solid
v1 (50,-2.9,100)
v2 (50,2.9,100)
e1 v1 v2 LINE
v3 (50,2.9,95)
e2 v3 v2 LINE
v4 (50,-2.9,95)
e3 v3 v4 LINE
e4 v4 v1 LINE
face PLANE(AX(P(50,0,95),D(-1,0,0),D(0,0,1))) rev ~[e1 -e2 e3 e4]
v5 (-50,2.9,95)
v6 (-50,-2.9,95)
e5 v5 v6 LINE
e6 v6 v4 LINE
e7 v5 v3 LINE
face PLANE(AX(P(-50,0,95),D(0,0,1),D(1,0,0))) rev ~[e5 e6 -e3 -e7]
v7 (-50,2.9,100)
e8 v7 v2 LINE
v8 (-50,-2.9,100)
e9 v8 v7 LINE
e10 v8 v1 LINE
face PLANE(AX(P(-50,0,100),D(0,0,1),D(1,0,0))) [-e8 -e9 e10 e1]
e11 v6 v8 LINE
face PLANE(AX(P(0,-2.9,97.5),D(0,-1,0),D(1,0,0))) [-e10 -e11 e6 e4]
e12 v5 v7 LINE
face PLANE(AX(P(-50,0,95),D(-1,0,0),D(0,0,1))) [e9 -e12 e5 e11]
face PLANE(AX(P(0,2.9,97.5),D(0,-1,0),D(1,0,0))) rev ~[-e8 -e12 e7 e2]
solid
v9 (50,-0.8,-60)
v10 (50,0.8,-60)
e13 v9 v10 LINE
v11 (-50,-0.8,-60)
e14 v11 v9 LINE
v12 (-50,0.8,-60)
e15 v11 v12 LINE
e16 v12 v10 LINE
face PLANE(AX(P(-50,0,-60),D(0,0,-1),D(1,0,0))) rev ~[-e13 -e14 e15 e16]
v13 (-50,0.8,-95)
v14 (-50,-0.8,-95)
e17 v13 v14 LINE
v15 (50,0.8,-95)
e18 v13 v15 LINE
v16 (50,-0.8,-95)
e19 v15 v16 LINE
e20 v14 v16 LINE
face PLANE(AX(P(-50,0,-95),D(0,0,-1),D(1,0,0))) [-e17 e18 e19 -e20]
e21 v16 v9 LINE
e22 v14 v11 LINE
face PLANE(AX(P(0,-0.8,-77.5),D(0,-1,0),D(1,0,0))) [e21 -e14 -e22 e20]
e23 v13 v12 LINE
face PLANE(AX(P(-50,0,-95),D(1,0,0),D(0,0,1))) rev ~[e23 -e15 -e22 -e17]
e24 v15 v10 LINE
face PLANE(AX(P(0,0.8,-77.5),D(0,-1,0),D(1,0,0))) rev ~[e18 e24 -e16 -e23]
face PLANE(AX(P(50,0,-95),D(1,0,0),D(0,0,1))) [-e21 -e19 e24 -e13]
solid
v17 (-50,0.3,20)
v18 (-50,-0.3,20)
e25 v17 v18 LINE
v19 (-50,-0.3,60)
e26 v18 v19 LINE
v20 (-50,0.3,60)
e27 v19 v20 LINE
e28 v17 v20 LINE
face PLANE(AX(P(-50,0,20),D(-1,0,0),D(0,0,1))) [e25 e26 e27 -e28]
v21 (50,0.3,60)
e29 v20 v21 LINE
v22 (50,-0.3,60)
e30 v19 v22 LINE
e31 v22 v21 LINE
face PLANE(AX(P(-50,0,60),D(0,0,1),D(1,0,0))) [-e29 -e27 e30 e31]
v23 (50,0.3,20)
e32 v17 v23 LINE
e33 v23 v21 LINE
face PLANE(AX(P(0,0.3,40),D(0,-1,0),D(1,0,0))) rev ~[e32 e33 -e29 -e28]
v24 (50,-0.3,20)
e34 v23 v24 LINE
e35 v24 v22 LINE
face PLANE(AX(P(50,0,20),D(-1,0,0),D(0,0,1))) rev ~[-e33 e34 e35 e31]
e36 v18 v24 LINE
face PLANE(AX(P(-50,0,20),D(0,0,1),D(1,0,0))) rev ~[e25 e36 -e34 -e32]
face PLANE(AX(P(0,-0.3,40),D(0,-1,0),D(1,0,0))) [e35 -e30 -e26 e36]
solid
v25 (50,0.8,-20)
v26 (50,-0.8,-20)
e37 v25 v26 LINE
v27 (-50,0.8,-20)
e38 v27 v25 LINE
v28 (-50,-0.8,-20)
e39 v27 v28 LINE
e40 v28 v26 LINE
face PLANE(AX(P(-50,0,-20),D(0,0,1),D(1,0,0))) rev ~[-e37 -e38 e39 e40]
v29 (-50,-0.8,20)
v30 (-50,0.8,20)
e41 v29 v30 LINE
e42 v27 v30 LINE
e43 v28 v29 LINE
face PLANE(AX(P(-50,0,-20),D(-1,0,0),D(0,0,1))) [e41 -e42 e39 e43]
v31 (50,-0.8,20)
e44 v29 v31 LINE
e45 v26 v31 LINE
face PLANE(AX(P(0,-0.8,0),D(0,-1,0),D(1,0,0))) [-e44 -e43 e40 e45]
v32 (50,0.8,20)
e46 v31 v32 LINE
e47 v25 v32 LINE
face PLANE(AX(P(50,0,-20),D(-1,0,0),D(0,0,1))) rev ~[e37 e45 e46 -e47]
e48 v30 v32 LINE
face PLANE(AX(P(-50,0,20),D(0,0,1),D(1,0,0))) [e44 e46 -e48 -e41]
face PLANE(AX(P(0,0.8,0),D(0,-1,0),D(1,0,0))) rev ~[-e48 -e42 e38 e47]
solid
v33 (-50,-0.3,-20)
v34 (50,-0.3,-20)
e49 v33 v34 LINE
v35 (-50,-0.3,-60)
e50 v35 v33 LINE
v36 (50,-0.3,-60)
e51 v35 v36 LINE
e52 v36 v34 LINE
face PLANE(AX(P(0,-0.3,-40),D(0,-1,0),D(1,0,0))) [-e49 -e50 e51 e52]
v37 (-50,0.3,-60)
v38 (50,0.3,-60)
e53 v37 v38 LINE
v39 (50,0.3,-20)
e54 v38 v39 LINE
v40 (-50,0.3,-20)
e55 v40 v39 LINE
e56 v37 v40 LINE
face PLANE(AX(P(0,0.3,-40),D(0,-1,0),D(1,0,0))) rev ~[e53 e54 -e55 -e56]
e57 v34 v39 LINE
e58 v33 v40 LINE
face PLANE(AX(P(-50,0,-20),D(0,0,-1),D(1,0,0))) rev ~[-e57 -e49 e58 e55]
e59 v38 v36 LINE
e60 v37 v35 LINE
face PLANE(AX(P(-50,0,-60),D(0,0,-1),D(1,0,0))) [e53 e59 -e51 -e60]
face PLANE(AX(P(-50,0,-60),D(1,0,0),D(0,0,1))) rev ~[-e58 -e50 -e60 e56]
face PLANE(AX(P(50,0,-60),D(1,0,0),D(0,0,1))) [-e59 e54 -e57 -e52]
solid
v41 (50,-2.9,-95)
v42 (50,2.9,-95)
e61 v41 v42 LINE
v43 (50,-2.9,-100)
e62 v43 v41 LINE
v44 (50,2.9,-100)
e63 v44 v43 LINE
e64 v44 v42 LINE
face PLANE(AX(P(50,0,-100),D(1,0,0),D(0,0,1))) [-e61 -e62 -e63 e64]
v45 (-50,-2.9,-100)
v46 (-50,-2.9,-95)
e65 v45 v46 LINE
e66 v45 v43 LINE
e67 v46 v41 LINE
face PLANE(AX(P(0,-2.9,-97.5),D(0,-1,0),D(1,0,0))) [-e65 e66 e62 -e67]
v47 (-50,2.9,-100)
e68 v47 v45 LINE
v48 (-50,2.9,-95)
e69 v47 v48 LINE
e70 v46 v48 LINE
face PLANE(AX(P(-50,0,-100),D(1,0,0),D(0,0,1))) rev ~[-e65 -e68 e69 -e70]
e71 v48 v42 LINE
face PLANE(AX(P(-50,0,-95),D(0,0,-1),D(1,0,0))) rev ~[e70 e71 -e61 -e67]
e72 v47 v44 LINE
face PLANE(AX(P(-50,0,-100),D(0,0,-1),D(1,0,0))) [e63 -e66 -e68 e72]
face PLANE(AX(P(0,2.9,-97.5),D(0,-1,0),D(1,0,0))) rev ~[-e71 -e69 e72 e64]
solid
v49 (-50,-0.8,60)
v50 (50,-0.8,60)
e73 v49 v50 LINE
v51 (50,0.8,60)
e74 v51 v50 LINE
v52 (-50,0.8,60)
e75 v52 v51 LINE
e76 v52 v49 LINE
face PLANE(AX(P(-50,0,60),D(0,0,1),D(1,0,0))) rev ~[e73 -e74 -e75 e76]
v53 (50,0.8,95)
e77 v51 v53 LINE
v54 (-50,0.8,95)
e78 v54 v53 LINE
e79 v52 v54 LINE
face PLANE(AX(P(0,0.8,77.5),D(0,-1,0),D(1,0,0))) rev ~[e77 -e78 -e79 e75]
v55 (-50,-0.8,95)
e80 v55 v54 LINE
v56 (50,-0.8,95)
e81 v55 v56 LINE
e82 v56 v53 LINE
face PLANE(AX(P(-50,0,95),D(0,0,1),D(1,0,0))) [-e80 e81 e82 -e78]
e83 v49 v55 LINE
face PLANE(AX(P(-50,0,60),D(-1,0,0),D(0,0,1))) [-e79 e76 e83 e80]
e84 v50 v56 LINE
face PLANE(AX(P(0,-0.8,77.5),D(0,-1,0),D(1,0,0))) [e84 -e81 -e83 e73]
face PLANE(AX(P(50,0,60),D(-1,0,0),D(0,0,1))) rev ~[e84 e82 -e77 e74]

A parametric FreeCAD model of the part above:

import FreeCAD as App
import Part
import Sketcher

doc = App.newDocument("Part")
params = doc.addObject("Spreadsheet::Sheet", "Params")
for row, (alias, value) in enumerate([
    ("sketch1_width", "100 mm"),
    ("sketch1_height", "5 mm"),
    ("pad1_length", "5.8 mm"),
    ("sketch2_width", "100 mm"),
    ("sketch2_height", "35 mm"),
    ("sketch2_height2", "40 mm"),
    ("pad2_length", "1.6 mm"),
    ("sketch3_width", "100 mm"),
    ("sketch3_height", "40 mm"),
    ("pad3_length", "0.6 mm"),
], start=1):
    params.set(f"A{row}", alias)
    params.set(f"B{row}", "=" + value)
    params.setAlias(f"B{row}", alias)

body = doc.addObject("PartDesign::Body", "Body")
body.AllowCompound = True

# Sketch on XZ plane
sketch1 = doc.addObject("Sketcher::SketchObject", "Sketch")
body.addObject(sketch1)
sketch1.AttachmentSupport = (doc.XZ_Plane, [""])
sketch1.MapMode = "FlatFace"
sketch1.addGeometry([
    Part.LineSegment(App.Vector(-50, 100, 0), App.Vector(-50, 95, 0)),  # 0
    Part.LineSegment(App.Vector(-50, 95, 0), App.Vector(50, 95, 0)),  # 1
    Part.LineSegment(App.Vector(50, 95, 0), App.Vector(50, 100, 0)),  # 2
    Part.LineSegment(App.Vector(50, 100, 0), App.Vector(-50, 100, 0)),  # 3
    Part.LineSegment(App.Vector(-50, -95, 0), App.Vector(-50, -100, 0)),  # 4
    Part.LineSegment(App.Vector(-50, -100, 0), App.Vector(50, -100, 0)),  # 5
    Part.LineSegment(App.Vector(50, -100, 0), App.Vector(50, -95, 0)),  # 6
    Part.LineSegment(App.Vector(50, -95, 0), App.Vector(-50, -95, 0)),  # 7
], False)
sketch1.addConstraint([
    Sketcher.Constraint("Coincident", 0, 2, 1, 1),
    Sketcher.Constraint("Coincident", 1, 2, 2, 1),
    Sketcher.Constraint("Coincident", 2, 2, 3, 1),
    Sketcher.Constraint("Coincident", 3, 2, 0, 1),
    Sketcher.Constraint("Coincident", 4, 2, 5, 1),
    Sketcher.Constraint("Coincident", 5, 2, 6, 1),
    Sketcher.Constraint("Coincident", 6, 2, 7, 1),
    Sketcher.Constraint("Coincident", 7, 2, 4, 1),
    Sketcher.Constraint("Vertical", 0),
    Sketcher.Constraint("Horizontal", 1),
    Sketcher.Constraint("Vertical", 2),
    Sketcher.Constraint("Horizontal", 3),
    Sketcher.Constraint("Vertical", 4),
    Sketcher.Constraint("Horizontal", 5),
    Sketcher.Constraint("Vertical", 6),
    Sketcher.Constraint("Horizontal", 7),
    Sketcher.Constraint("Symmetric", 2, 2, 4, 2, -1, 1),
    Sketcher.Constraint("Symmetric", 0, 2, 6, 2, -1, 1),
    Sketcher.Constraint("Vertical", 3, 2, 4, 2),
    Sketcher.Constraint("DistanceX", 1, 1, 1, 2, 100.0),
    Sketcher.Constraint("DistanceY", 0, 2, 0, 1, 5.0),
    Sketcher.Constraint("DistanceY", -1, 1, 0, 2, 95.0),
])
sketch1.setExpression("Constraints[19]", "Params.sketch1_width")
sketch1.setExpression("Constraints[20]", "Params.sketch1_height")
pad1 = doc.addObject("PartDesign::Pad", "Pad")
body.addObject(pad1)
pad1.Profile = sketch1
pad1.setExpression("Length", "Params.pad1_length")
pad1.Midplane = True
body2 = doc.addObject("PartDesign::Body", "Body001")
body2.AllowCompound = True

# Sketch on XZ plane
sketch2 = doc.addObject("Sketcher::SketchObject", "Sketch001")
body2.addObject(sketch2)
sketch2.AttachmentSupport = (doc.getObject("XZ_Plane001"), [""])
sketch2.MapMode = "FlatFace"
sketch2.addGeometry([
    Part.LineSegment(App.Vector(-50, 95, 0), App.Vector(-50, 60, 0)),  # 0
    Part.LineSegment(App.Vector(-50, 60, 0), App.Vector(50, 60, 0)),  # 1
    Part.LineSegment(App.Vector(50, 60, 0), App.Vector(50, 95, 0)),  # 2
    Part.LineSegment(App.Vector(50, 95, 0), App.Vector(-50, 95, 0)),  # 3
    Part.LineSegment(App.Vector(-50, 20, 0), App.Vector(-50, -20, 0)),  # 4
    Part.LineSegment(App.Vector(-50, -20, 0), App.Vector(50, -20, 0)),  # 5
    Part.LineSegment(App.Vector(50, -20, 0), App.Vector(50, 20, 0)),  # 6
    Part.LineSegment(App.Vector(50, 20, 0), App.Vector(-50, 20, 0)),  # 7
    Part.LineSegment(App.Vector(-50, -60, 0), App.Vector(-50, -95, 0)),  # 8
    Part.LineSegment(App.Vector(-50, -95, 0), App.Vector(50, -95, 0)),  # 9
    Part.LineSegment(App.Vector(50, -95, 0), App.Vector(50, -60, 0)),  # 10
    Part.LineSegment(App.Vector(50, -60, 0), App.Vector(-50, -60, 0)),  # 11
], False)
sketch2.addConstraint([
    Sketcher.Constraint("Coincident", 0, 2, 1, 1),
    Sketcher.Constraint("Coincident", 1, 2, 2, 1),
    Sketcher.Constraint("Coincident", 2, 2, 3, 1),
    Sketcher.Constraint("Coincident", 3, 2, 0, 1),
    Sketcher.Constraint("Coincident", 4, 2, 5, 1),
    Sketcher.Constraint("Coincident", 5, 2, 6, 1),
    Sketcher.Constraint("Coincident", 6, 2, 7, 1),
    Sketcher.Constraint("Coincident", 7, 2, 4, 1),
    Sketcher.Constraint("Coincident", 8, 2, 9, 1),
    Sketcher.Constraint("Coincident", 9, 2, 10, 1),
    Sketcher.Constraint("Coincident", 10, 2, 11, 1),
    Sketcher.Constraint("Coincident", 11, 2, 8, 1),
    Sketcher.Constraint("Vertical", 0),
    Sketcher.Constraint("Horizontal", 1),
    Sketcher.Constraint("Vertical", 2),
    Sketcher.Constraint("Horizontal", 3),
    Sketcher.Constraint("Vertical", 4),
    Sketcher.Constraint("Horizontal", 5),
    Sketcher.Constraint("Vertical", 6),
    Sketcher.Constraint("Horizontal", 7),
    Sketcher.Constraint("Vertical", 8),
    Sketcher.Constraint("Horizontal", 9),
    Sketcher.Constraint("Vertical", 10),
    Sketcher.Constraint("Horizontal", 11),
    Sketcher.Constraint("Symmetric", 4, 2, 6, 2, -1, 1),
    Sketcher.Constraint("Symmetric", 2, 2, 8, 2, -1, 1),
    Sketcher.Constraint("Symmetric", 0, 2, 10, 2, -1, 1),
    Sketcher.Constraint("Vertical", 3, 2, 4, 2),
    Sketcher.Constraint("Vertical", 2, 2, 5, 2),
    Sketcher.Constraint("DistanceX", 1, 1, 1, 2, 100.0),
    Sketcher.Constraint("DistanceY", 0, 2, 0, 1, 35.0),
    Sketcher.Constraint("DistanceY", 4, 2, 4, 1, 40.0),
    Sketcher.Constraint("DistanceY", -1, 1, 0, 2, 60.0),
])
sketch2.setExpression("Constraints[29]", "Params.sketch2_width")
sketch2.setExpression("Constraints[30]", "Params.sketch2_height")
sketch2.setExpression("Constraints[31]", "Params.sketch2_height2")
pad2 = doc.addObject("PartDesign::Pad", "Pad001")
body2.addObject(pad2)
pad2.Profile = sketch2
pad2.setExpression("Length", "Params.pad2_length")
pad2.Midplane = True
body3 = doc.addObject("PartDesign::Body", "Body002")
body3.AllowCompound = True

# Sketch on XZ plane
sketch3 = doc.addObject("Sketcher::SketchObject", "Sketch002")
body3.addObject(sketch3)
sketch3.AttachmentSupport = (doc.getObject("XZ_Plane002"), [""])
sketch3.MapMode = "FlatFace"
sketch3.addGeometry([
    Part.LineSegment(App.Vector(-50, 60, 0), App.Vector(-50, 20, 0)),  # 0
    Part.LineSegment(App.Vector(-50, 20, 0), App.Vector(50, 20, 0)),  # 1
    Part.LineSegment(App.Vector(50, 20, 0), App.Vector(50, 60, 0)),  # 2
    Part.LineSegment(App.Vector(50, 60, 0), App.Vector(-50, 60, 0)),  # 3
    Part.LineSegment(App.Vector(-50, -20, 0), App.Vector(-50, -60, 0)),  # 4
    Part.LineSegment(App.Vector(-50, -60, 0), App.Vector(50, -60, 0)),  # 5
    Part.LineSegment(App.Vector(50, -60, 0), App.Vector(50, -20, 0)),  # 6
    Part.LineSegment(App.Vector(50, -20, 0), App.Vector(-50, -20, 0)),  # 7
], False)
sketch3.addConstraint([
    Sketcher.Constraint("Coincident", 0, 2, 1, 1),
    Sketcher.Constraint("Coincident", 1, 2, 2, 1),
    Sketcher.Constraint("Coincident", 2, 2, 3, 1),
    Sketcher.Constraint("Coincident", 3, 2, 0, 1),
    Sketcher.Constraint("Coincident", 4, 2, 5, 1),
    Sketcher.Constraint("Coincident", 5, 2, 6, 1),
    Sketcher.Constraint("Coincident", 6, 2, 7, 1),
    Sketcher.Constraint("Coincident", 7, 2, 4, 1),
    Sketcher.Constraint("Vertical", 0),
    Sketcher.Constraint("Horizontal", 1),
    Sketcher.Constraint("Vertical", 2),
    Sketcher.Constraint("Horizontal", 3),
    Sketcher.Constraint("Vertical", 4),
    Sketcher.Constraint("Horizontal", 5),
    Sketcher.Constraint("Vertical", 6),
    Sketcher.Constraint("Horizontal", 7),
    Sketcher.Constraint("Symmetric", 2, 2, 4, 2, -1, 1),
    Sketcher.Constraint("Symmetric", 0, 2, 6, 2, -1, 1),
    Sketcher.Constraint("Vertical", 3, 2, 4, 2),
    Sketcher.Constraint("DistanceX", 1, 1, 1, 2, 100.0),
    Sketcher.Constraint("DistanceY", 0, 2, 0, 1, 40.0),
    Sketcher.Constraint("DistanceY", -1, 1, 0, 2, 20.0),
])
sketch3.setExpression("Constraints[19]", "Params.sketch3_width")
sketch3.setExpression("Constraints[20]", "Params.sketch3_height")
pad3 = doc.addObject("PartDesign::Pad", "Pad002")
body3.addObject(pad3)
pad3.Profile = sketch3
pad3.setExpression("Length", "Params.pad3_length")
pad3.Midplane = True

doc.recompute()
